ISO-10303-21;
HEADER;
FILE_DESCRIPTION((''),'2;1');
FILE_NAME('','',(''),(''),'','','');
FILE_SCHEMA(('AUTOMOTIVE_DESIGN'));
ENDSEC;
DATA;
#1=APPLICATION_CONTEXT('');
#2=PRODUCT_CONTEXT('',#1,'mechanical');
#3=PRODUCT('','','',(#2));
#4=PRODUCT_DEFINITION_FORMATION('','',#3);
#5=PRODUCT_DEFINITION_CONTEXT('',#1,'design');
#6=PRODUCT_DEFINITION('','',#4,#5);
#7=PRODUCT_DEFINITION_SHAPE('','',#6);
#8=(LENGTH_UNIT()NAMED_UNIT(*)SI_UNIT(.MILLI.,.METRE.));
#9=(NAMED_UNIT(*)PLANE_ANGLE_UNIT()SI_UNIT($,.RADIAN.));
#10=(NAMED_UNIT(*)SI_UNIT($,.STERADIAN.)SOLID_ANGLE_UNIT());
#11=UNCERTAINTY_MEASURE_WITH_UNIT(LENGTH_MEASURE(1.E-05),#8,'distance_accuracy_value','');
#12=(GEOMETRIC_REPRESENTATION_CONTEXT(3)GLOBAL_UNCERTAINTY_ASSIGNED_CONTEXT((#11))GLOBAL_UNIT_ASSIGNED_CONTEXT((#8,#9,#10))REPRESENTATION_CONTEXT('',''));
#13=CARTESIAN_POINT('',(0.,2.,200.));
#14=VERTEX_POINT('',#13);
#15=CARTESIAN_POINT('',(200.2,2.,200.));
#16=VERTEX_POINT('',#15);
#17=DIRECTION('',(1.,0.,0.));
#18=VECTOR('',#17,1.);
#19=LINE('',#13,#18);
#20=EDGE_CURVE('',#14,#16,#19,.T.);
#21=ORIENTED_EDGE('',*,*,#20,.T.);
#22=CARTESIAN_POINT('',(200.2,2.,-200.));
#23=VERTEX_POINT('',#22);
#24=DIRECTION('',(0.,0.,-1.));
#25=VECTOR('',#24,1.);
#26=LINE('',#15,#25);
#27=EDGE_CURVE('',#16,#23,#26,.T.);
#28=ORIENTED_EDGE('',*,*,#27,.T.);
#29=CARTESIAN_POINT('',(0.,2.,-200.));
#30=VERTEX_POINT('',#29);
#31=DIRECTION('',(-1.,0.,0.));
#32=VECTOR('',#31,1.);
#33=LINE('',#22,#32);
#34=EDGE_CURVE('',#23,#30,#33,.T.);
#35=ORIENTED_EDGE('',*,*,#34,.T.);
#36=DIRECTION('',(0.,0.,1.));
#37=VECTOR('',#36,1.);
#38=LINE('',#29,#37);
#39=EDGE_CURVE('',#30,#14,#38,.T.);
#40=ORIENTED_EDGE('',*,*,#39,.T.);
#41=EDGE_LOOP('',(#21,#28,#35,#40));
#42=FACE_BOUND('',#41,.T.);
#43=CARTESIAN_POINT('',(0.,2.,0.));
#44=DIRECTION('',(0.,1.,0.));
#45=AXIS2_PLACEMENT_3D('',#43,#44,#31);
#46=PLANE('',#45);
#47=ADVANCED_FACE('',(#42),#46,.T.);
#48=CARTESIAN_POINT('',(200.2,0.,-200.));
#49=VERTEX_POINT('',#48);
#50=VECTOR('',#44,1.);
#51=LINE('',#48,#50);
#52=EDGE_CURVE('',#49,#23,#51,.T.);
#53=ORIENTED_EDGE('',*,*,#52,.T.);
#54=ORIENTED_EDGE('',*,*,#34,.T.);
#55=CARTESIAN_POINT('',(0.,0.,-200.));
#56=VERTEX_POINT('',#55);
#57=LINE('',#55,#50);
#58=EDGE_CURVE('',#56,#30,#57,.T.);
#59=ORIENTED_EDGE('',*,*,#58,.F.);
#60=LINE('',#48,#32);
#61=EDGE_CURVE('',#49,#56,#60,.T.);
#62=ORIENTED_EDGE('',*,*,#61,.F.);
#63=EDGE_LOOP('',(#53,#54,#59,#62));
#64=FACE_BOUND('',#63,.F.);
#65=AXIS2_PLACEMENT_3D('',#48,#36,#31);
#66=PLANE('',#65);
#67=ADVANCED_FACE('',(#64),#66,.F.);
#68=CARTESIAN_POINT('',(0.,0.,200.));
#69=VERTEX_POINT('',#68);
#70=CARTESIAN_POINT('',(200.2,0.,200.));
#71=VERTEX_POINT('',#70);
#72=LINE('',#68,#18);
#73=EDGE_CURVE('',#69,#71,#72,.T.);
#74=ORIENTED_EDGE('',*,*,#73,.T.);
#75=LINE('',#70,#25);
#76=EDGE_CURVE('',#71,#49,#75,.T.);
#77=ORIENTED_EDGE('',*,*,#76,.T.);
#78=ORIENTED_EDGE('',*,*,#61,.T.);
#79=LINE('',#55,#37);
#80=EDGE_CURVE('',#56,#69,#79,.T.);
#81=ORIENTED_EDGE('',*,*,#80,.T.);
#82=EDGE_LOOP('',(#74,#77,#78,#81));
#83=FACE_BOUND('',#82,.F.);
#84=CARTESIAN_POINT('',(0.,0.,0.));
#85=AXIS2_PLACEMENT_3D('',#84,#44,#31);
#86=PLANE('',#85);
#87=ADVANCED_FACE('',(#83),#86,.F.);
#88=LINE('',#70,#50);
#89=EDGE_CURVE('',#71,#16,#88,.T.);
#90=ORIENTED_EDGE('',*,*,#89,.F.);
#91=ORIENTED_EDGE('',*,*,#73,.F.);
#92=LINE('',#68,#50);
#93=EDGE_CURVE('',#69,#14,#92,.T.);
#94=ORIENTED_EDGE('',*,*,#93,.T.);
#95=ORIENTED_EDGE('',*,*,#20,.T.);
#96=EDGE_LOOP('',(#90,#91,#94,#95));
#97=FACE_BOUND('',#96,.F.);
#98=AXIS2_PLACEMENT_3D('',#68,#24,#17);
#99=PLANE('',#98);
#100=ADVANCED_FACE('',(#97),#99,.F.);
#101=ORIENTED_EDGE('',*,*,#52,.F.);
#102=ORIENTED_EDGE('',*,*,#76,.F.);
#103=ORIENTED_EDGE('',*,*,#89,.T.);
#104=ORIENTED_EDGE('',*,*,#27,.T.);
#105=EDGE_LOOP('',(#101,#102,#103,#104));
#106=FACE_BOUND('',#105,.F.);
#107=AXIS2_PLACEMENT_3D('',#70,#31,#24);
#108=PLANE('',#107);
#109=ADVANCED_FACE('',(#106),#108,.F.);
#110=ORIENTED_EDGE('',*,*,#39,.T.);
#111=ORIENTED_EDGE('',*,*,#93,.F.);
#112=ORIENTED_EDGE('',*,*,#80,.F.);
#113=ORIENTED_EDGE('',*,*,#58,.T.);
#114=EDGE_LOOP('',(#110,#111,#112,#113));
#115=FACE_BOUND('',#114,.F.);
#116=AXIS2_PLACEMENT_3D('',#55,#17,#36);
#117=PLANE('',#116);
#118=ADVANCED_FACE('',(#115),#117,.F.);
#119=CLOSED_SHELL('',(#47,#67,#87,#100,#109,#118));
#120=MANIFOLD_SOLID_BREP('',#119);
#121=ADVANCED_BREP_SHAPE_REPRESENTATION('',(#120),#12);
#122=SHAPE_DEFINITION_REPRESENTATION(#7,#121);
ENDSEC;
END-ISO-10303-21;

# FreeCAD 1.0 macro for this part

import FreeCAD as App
import Part
import Sketcher

V = App.Vector

doc = App.newDocument("Part")
params = doc.addObject("Spreadsheet::Sheet", "Params")
for row, (alias, value) in enumerate([
    ("sketch1_height", "400 mm"),
    ("sketch1_width", "200.2 mm"),
    ("pad1_length", "2 mm"),
], start=1):
    params.set(f"A{row}", alias)
    params.set(f"B{row}", "=" + value)
    params.setAlias(f"B{row}", alias)

body = doc.addObject("PartDesign::Body", "Body")

sketch1 = body.newObject("Sketcher::SketchObject", "Sketch")
sketch1.AttachmentSupport = (doc.getObject("XZ_Plane"), [""])
sketch1.MapMode = "FlatFace"
sketch1.addGeometry([
    Part.LineSegment(V(0, -200, 0), V(0, 200, 0)),
    Part.LineSegment(V(0, 200, 0), V(200, 200, 0)),
    Part.LineSegment(V(200, 200, 0), V(200, -200, 0)),
    Part.LineSegment(V(200, -200, 0), V(0, -200, 0)),
], False)
sketch1.addConstraint([
    Sketcher.Constraint("Coincident", 0, 2, 1, 1),
    Sketcher.Constraint("Coincident", 1, 2, 2, 1),
    Sketcher.Constraint("Coincident", 2, 2, 3, 1),
    Sketcher.Constraint("Coincident", 3, 2, 0, 1),
    Sketcher.Constraint("Vertical", 0),
    Sketcher.Constraint("Horizontal", 1),
    Sketcher.Constraint("Vertical", 2),
    Sketcher.Constraint("Horizontal", 3),
    Sketcher.Constraint("Symmetric", 0, 2, 3, 2, -1, 1),
    Sketcher.Constraint("DistanceY", 0, 1, 0, 2, 400.0),
    Sketcher.Constraint("DistanceX", 1, 1, 1, 2, 200.2),
])
sketch1.setExpression("Constraints[9]", "Params.sketch1_height")
sketch1.setExpression("Constraints[10]", "Params.sketch1_width")
pad1 = body.newObject("PartDesign::Pad", "Pad")
pad1.Profile = sketch1
pad1.setExpression("Length", "Params.pad1_length")
pad1.Reversed = True

doc.recompute()
